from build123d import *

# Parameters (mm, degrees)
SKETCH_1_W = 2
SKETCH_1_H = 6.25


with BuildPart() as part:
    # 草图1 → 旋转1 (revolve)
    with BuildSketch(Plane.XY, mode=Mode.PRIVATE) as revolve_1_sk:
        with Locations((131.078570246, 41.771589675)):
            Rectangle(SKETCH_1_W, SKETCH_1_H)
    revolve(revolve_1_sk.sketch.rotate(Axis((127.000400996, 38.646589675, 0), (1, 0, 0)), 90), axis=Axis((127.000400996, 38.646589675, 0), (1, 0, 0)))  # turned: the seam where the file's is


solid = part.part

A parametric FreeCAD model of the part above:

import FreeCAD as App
import Part
import Sketcher
from FreeCAD import Vector
Q = App.Units.Quantity

doc = App.newDocument("Part")
body = doc.addObject("PartDesign::Body", "Body")

# Sketch on XY plane
sketch1 = doc.addObject("Sketcher::SketchObject", "Sketch")
body.addObject(sketch1)
sketch1.AttachmentSupport = (doc.XY_Plane, [""])
sketch1.MapMode = "FlatFace"
sketch1.addGeometry(Part.LineSegment(Vector(130.1, 44.9, 0), Vector(130.1, 38.6, 0)), False)
sketch1.addGeometry(Part.LineSegment(Vector(130.1, 38.6, 0), Vector(132.1, 38.6, 0)), False)
sketch1.addGeometry(Part.LineSegment(Vector(132.1, 38.6, 0), Vector(132.1, 44.9, 0)), False)
sketch1.addGeometry(Part.LineSegment(Vector(132.1, 44.9, 0), Vector(130.1, 44.9, 0)), False)
sketch1.addGeometry(Part.LineSegment(Vector(130.1, 38.6, 0), Vector(132.1, 38.6, 0)), True)  # axis
sketch1.addConstraint(Sketcher.Constraint("Coincident", 0, 2, 1, 1))
sketch1.addConstraint(Sketcher.Constraint("Coincident", 1, 2, 2, 1))
sketch1.addConstraint(Sketcher.Constraint("Coincident", 2, 2, 3, 1))
sketch1.addConstraint(Sketcher.Constraint("Coincident", 3, 2, 0, 1))
sketch1.addConstraint(Sketcher.Constraint("Vertical", 0))
sketch1.addConstraint(Sketcher.Constraint("Horizontal", 1))
sketch1.addConstraint(Sketcher.Constraint("Vertical", 2))
sketch1.addConstraint(Sketcher.Constraint("Horizontal", 3))
sketch1.addConstraint(Sketcher.Constraint("Horizontal", 4))
sketch1.addConstraint(Sketcher.Constraint("Coincident", 4, 1, 0, 2))
sketch1.addConstraint(Sketcher.Constraint("Vertical", 2, 2, 4, 2))
sketch1.addConstraint(Sketcher.Constraint("DistanceX", 1, 1, 1, 2, Q("2 mm")))
sketch1.addConstraint(Sketcher.Constraint("DistanceY", 0, 2, 0, 1, Q("6.25 mm")))
sketch1.addConstraint(Sketcher.Constraint("DistanceX", -1, 1, 0, 2, Q("130.07857 mm")))
sketch1.addConstraint(Sketcher.Constraint("DistanceY", -1, 1, 0, 2, Q("38.64659 mm")))
revolution = doc.addObject("PartDesign::Revolution", "Revolution")
body.addObject(revolution)
revolution.Profile = sketch1
revolution.ReferenceAxis = (sketch1, ["Axis0"])
revolution.Angle = 360

doc.recompute()
